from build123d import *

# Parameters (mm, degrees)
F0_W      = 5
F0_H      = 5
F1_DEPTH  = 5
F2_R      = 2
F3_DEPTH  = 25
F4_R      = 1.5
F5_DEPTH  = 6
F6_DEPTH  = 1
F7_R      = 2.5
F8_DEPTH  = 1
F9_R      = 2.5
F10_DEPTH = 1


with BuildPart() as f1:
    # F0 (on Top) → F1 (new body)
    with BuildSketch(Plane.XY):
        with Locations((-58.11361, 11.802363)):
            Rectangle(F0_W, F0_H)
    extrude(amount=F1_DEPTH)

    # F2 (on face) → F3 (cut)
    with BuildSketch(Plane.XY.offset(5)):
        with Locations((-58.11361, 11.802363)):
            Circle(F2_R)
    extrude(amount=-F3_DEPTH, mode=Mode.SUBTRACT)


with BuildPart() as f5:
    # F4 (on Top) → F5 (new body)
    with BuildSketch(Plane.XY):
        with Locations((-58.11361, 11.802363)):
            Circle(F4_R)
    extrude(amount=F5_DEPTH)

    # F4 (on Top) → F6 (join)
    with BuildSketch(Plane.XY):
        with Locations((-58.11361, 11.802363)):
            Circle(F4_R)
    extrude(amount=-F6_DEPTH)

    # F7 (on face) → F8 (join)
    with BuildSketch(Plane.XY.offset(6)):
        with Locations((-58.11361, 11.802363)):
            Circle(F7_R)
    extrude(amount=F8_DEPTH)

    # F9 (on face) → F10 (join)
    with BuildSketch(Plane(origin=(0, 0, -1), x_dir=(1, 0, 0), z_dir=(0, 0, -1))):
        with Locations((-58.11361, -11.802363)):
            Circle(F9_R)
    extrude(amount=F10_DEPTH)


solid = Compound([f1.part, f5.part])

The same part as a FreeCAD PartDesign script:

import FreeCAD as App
import Part
import Sketcher

doc = App.newDocument("Part")
body = doc.addObject("PartDesign::Body", "Body")

sketch1 = body.newObject("Sketcher::SketchObject", "Sketch")
sketch1.AttachmentSupport = (doc.getObject("XY_Plane"), [""])
sketch1.MapMode = "FlatFace"
sketch1.addGeometry([
    Part.LineSegment(App.Vector(-61, 14, 0), App.Vector(-61, 9, 0)),
    Part.LineSegment(App.Vector(-61, 9, 0), App.Vector(-56, 9, 0)),
    Part.LineSegment(App.Vector(-56, 9, 0), App.Vector(-56, 14, 0)),
    Part.LineSegment(App.Vector(-56, 14, 0), App.Vector(-61, 14, 0)),
], False)
sketch1.addConstraint([
    Sketcher.Constraint("Coincident", 0, 2, 1, 1),
    Sketcher.Constraint("Coincident", 1, 2, 2, 1),
    Sketcher.Constraint("Coincident", 2, 2, 3, 1),
    Sketcher.Constraint("Coincident", 3, 2, 0, 1),
    Sketcher.Constraint("Vertical", 0),
    Sketcher.Constraint("Horizontal", 1),
    Sketcher.Constraint("Vertical", 2),
    Sketcher.Constraint("Horizontal", 3),
    Sketcher.Constraint("Equal", 3, 0),
    Sketcher.Constraint("DistanceX", 1, 1, 1, 2, 5.0),
    Sketcher.Constraint("DistanceX", 0, 2, -1, 1, 60.61361),
    Sketcher.Constraint("DistanceY", -1, 1, 0, 2, 9.302363),
])
pad1 = body.newObject("PartDesign::Pad", "Pad")
pad1.Profile = sketch1
pad1.Length = 5

sketch2 = body.newObject("Sketcher::SketchObject", "Sketch001")
sketch2.AttachmentSupport = (doc.getObject("XY_Plane"), [""])
sketch2.MapMode = "FlatFace"
sketch2.AttachmentOffset = App.Placement(App.Vector(0, 0, 5), App.Rotation())
sketch2.addGeometry(Part.Circle(App.Vector(-58.1, 11.8, 0), App.Vector(0, 0, 1), 2), False)
sketch2.addConstraint([
    Sketcher.Constraint("Diameter", 0, 4.0),
    Sketcher.Constraint("DistanceX", 0, 3, -1, 1, 58.11361),
    Sketcher.Constraint("DistanceY", -1, 1, 0, 3, 11.802363),
])
pocket1 = body.newObject("PartDesign::Pocket", "Pocket")
pocket1.Profile = sketch2
pocket1.Length = 25
body2 = doc.addObject("PartDesign::Body", "Body001")

sketch3 = body2.newObject("Sketcher::SketchObject", "Sketch002")
sketch3.AttachmentSupport = (doc.getObject("XY_Plane001"), [""])
sketch3.MapMode = "FlatFace"
sketch3.addGeometry(Part.Circle(App.Vector(-58.1, 11.8, 0), App.Vector(0, 0, 1), 1.5), False)
sketch3.addConstraint([
    Sketcher.Constraint("Diameter", 0, 3.0),
    Sketcher.Constraint("DistanceX", 0, 3, -1, 1, 58.11361),
    Sketcher.Constraint("DistanceY", -1, 1, 0, 3, 11.802363),
])
pad2 = body2.newObject("PartDesign::Pad", "Pad001")
pad2.Profile = sketch3
pad2.Length = 6

sketch4 = body2.newObject("Sketcher::SketchObject", "Sketch003")
sketch4.AttachmentSupport = (doc.getObject("XY_Plane001"), [""])
sketch4.MapMode = "FlatFace"
sketch4.addGeometry(Part.Circle(App.Vector(-58.1, 11.8, 0), App.Vector(0, 0, 1), 1.5), False)
sketch4.addConstraint([
    Sketcher.Constraint("Diameter", 0, 3.0),
    Sketcher.Constraint("DistanceX", 0, 3, -1, 1, 58.11361),
    Sketcher.Constraint("DistanceY", -1, 1, 0, 3, 11.802363),
])
pad3 = body2.newObject("PartDesign::Pad", "Pad002")
pad3.Profile = sketch4
pad3.Length = 1
pad3.Reversed = True

sketch5 = body2.newObject("Sketcher::SketchObject", "Sketch004")
sketch5.AttachmentSupport = (doc.getObject("XY_Plane001"), [""])
sketch5.MapMode = "FlatFace"
sketch5.AttachmentOffset = App.Placement(App.Vector(0, 0, 6), App.Rotation())
sketch5.addGeometry(Part.Circle(App.Vector(-58.1, 11.8, 0), App.Vector(0, 0, 1), 2.5), False)
sketch5.addConstraint([
    Sketcher.Constraint("Diameter", 0, 5.0),
    Sketcher.Constraint("DistanceX", 0, 3, -1, 1, 58.11361),
    Sketcher.Constraint("DistanceY", -1, 1, 0, 3, 11.802363),
])
pad4 = body2.newObject("PartDesign::Pad", "Pad003")
pad4.Profile = sketch5
pad4.Length = 1

sketch6 = body2.newObject("Sketcher::SketchObject", "Sketch005")
sketch6.AttachmentSupport = (doc.getObject("XY_Plane001"), [""])
sketch6.MapMode = "FlatFace"
sketch6.AttachmentOffset = App.Placement(App.Vector(0, 0, -1), App.Rotation())
sketch6.addGeometry(Part.Circle(App.Vector(-58.1, 11.8, 0), App.Vector(0, 0, 1), 2.5), False)
sketch6.addConstraint([
    Sketcher.Constraint("Diameter", 0, 5.0),
    Sketcher.Constraint("DistanceX", 0, 3, -1, 1, 58.11361),
    Sketcher.Constraint("DistanceY", -1, 1, 0, 3, 11.802363),
])
pad5 = body2.newObject("PartDesign::Pad", "Pad004")
pad5.Profile = sketch6
pad5.Length = 1
pad5.Reversed = True

doc.recompute()
